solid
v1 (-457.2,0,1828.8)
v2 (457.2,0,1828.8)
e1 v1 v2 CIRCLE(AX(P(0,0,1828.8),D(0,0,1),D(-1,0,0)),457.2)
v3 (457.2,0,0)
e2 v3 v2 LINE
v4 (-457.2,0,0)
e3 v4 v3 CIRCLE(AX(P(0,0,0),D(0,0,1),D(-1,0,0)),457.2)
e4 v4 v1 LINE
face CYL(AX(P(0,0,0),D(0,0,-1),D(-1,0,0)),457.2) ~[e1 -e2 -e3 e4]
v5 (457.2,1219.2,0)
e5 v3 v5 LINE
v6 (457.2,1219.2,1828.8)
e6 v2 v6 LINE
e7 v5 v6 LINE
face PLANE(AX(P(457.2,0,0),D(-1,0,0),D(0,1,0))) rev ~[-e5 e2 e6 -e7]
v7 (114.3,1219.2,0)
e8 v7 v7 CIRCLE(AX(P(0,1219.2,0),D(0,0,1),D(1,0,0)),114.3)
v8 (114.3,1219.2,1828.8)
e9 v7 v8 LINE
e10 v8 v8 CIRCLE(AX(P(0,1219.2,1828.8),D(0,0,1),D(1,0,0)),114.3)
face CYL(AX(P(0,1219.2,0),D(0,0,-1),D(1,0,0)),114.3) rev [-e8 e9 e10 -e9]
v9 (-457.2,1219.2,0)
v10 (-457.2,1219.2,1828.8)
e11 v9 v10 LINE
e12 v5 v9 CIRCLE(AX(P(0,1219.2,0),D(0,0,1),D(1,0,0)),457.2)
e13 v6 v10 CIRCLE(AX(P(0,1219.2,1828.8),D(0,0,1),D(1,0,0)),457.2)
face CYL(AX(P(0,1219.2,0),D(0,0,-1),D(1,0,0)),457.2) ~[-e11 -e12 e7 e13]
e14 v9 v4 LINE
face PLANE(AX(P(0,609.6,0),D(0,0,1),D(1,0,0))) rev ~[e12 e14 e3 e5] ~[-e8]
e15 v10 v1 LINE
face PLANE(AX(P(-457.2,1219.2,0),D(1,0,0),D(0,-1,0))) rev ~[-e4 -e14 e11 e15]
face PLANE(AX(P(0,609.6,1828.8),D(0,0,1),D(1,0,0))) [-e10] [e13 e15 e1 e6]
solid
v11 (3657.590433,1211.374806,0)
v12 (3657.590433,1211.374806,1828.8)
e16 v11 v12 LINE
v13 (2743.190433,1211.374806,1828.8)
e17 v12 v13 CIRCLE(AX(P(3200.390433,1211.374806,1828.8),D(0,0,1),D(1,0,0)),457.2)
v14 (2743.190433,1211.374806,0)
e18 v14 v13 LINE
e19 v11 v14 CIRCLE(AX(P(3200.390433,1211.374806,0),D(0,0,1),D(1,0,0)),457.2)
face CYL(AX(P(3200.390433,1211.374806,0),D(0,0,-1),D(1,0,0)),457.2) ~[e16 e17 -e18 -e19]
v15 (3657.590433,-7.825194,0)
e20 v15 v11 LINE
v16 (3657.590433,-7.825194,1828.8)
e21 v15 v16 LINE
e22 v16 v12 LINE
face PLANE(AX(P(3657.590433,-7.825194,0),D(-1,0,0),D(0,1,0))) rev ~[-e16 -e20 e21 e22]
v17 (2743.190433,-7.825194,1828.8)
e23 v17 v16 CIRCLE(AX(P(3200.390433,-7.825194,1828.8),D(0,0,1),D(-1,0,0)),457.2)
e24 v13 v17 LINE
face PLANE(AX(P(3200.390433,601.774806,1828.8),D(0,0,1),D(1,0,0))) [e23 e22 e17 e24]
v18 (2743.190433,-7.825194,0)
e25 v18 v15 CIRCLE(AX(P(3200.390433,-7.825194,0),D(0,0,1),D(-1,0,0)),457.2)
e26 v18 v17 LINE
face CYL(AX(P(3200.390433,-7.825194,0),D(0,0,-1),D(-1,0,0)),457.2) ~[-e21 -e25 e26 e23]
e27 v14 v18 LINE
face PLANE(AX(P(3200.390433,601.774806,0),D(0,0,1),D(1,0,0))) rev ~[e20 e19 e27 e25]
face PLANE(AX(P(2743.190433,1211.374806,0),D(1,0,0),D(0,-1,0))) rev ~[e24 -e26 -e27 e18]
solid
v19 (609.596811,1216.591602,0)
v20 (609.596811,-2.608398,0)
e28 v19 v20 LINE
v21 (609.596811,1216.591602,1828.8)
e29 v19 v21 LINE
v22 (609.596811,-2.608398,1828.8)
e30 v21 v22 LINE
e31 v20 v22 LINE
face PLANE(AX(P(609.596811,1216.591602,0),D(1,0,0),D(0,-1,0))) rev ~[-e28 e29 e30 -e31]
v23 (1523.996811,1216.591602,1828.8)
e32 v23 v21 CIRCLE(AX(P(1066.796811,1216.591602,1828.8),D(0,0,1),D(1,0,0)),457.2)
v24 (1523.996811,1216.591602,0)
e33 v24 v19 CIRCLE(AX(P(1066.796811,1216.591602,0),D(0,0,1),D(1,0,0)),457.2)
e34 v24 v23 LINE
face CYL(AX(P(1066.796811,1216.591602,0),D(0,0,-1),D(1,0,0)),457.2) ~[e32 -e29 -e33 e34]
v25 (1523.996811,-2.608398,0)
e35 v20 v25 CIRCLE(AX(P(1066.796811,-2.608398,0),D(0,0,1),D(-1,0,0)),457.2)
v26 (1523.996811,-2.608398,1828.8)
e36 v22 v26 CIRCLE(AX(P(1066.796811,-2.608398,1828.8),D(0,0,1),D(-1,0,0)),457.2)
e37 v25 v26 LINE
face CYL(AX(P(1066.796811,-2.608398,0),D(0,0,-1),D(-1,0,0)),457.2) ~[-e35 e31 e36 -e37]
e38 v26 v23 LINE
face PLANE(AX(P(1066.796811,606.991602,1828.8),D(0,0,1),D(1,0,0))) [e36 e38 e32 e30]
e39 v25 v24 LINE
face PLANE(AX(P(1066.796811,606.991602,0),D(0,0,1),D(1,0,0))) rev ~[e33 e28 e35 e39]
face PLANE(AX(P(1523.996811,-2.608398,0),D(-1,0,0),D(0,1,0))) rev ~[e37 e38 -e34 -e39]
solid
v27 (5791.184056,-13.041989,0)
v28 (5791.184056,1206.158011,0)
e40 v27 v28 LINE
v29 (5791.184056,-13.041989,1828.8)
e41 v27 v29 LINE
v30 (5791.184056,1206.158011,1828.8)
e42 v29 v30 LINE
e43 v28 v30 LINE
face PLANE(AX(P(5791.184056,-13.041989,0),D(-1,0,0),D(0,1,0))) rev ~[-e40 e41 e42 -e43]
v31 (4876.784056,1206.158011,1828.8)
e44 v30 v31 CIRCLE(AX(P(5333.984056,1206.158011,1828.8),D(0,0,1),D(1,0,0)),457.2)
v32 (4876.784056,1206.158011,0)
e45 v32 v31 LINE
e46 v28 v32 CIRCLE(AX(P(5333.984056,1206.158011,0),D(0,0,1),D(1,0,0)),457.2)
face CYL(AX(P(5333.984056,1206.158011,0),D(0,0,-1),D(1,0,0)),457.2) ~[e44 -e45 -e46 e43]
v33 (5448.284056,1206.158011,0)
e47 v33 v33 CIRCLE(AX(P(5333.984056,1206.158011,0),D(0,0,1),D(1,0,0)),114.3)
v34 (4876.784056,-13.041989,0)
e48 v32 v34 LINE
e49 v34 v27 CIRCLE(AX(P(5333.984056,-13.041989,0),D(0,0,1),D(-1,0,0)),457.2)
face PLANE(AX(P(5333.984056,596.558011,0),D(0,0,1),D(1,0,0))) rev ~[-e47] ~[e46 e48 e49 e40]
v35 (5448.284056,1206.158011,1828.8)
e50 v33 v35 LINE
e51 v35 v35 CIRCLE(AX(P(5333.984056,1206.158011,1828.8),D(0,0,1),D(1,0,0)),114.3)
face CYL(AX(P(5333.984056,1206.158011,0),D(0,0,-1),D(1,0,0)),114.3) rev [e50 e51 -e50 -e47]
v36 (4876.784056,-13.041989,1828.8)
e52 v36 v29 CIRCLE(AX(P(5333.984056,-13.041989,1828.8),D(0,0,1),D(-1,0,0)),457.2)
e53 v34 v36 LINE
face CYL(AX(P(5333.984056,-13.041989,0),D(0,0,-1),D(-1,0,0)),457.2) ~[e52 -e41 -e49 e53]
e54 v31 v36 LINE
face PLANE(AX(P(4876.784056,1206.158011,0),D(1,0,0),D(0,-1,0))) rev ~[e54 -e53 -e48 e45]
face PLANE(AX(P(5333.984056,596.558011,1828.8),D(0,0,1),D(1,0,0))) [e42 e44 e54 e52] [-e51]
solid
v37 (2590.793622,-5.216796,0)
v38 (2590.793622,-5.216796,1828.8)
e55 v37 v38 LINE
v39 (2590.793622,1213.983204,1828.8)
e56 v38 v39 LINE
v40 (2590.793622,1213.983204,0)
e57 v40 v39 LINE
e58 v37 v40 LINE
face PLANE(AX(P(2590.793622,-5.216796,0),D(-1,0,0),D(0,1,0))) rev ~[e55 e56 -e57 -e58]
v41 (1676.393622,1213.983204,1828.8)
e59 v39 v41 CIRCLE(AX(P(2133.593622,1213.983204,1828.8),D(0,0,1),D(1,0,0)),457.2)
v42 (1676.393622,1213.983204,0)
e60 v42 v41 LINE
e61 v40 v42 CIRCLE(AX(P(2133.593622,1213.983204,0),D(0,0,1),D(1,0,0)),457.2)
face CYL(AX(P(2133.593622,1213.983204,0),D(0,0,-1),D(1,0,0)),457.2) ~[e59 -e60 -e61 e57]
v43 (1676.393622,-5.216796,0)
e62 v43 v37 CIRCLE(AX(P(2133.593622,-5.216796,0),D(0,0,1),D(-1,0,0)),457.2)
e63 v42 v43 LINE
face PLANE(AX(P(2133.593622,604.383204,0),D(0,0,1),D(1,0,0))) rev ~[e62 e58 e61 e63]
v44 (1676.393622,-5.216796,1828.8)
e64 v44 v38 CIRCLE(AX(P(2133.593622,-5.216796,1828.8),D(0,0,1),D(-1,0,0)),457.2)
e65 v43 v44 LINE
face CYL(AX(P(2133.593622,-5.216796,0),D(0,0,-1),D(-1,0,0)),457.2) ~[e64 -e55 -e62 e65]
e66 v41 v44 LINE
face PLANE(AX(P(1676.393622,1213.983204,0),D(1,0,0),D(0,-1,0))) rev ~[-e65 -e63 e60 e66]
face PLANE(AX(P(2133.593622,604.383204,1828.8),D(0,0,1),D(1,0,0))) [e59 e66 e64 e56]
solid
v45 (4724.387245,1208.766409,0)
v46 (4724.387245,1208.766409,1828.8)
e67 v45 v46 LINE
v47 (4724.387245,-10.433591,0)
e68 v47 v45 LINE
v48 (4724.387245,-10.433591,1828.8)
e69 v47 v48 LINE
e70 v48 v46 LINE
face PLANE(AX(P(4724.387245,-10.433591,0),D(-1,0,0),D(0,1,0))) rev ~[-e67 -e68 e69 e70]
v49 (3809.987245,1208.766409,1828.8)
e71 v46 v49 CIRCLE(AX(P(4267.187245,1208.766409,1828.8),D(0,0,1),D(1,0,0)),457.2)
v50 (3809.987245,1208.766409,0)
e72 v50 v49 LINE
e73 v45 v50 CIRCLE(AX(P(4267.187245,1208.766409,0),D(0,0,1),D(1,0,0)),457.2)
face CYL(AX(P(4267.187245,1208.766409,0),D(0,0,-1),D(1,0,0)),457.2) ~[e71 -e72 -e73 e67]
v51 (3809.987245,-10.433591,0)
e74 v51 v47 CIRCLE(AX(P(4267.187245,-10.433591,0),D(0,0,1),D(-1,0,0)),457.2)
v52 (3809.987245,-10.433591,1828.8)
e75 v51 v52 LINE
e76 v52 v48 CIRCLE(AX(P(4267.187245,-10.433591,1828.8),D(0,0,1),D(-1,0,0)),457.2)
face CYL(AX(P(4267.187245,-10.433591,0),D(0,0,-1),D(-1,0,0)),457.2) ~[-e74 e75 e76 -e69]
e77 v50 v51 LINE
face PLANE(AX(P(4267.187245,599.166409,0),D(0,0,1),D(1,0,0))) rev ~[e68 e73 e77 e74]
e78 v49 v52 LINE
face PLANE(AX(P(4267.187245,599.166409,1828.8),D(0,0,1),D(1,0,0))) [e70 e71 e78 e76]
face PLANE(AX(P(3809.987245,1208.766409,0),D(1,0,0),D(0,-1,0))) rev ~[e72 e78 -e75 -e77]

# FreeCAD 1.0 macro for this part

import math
import FreeCAD as App
import Part
import Sketcher

V = App.Vector
Q = App.Units.Quantity

doc = App.newDocument("Part")
params = doc.addObject("Spreadsheet::Sheet", "Params")
for row, (alias, value) in enumerate([
    ("sketch1_diameter", "9 in"),
    ("sketch1_radius", "18 in"),
    ("sketch1_height", "48 in"),
    ("pad1_length", "72 in"),
], start=1):
    params.set(f"A{row}", alias)
    params.set(f"B{row}", "=" + value)
    params.setAlias(f"B{row}", alias)

body = doc.addObject("PartDesign::Body", "Body")
body.AllowCompound = True

# Sketch on XY plane
sketch1 = body.newObject("Sketcher::SketchObject", "Sketch")
sketch1.AttachmentSupport = (doc.getObject("XY_Plane"), [""])
sketch1.MapMode = "FlatFace"
sketch1.addGeometry([
    Part.ArcOfCircle(Part.Circle(V(0, 1219, 0), V(0, 0, 1), 457), math.radians(0), math.radians(180)),  # 0
    Part.LineSegment(V(-457, 1219, 0), V(-457, 0, 0)),  # 1
    Part.ArcOfCircle(Part.Circle(V(0, 0, 0), V(0, 0, 1), 457), math.radians(180), math.radians(360)),  # 2
    Part.LineSegment(V(457, 0, 0), V(457, 1219, 0)),  # 3
    Part.Circle(V(0, 1219, 0), V(0, 0, 1), 114),  # 4
    Part.LineSegment(V(1524, -3, 0), V(1524, 1217, 0)),  # 5
    Part.ArcOfCircle(Part.Circle(V(1067, 1217, 0), V(0, 0, 1), 457), math.radians(0), math.radians(180)),  # 6
    Part.LineSegment(V(610, 1217, 0), V(610, -3, 0)),  # 7
    Part.ArcOfCircle(Part.Circle(V(1067, -3, 0), V(0, 0, 1), 457), math.radians(180), math.radians(360)),  # 8
    Part.LineSegment(V(2591, -5, 0), V(2591, 1214, 0)),  # 9
    Part.ArcOfCircle(Part.Circle(V(2134, 1214, 0), V(0, 0, 1), 457), math.radians(0), math.radians(180)),  # 10
    Part.LineSegment(V(1676, 1214, 0), V(1676, -5, 0)),  # 11
    Part.ArcOfCircle(Part.Circle(V(2134, -5, 0), V(0, 0, 1), 457), math.radians(180), math.radians(360)),  # 12
    Part.LineSegment(V(3658, -8, 0), V(3658, 1211, 0)),  # 13
    Part.ArcOfCircle(Part.Circle(V(3200, 1211, 0), V(0, 0, 1), 457), math.radians(0), math.radians(180)),  # 14
    Part.LineSegment(V(2743, 1211, 0), V(2743, -8, 0)),  # 15
    Part.ArcOfCircle(Part.Circle(V(3200, -8, 0), V(0, 0, 1), 457), math.radians(180), math.radians(360)),  # 16
    Part.LineSegment(V(4724, -10, 0), V(4724, 1209, 0)),  # 17
    Part.ArcOfCircle(Part.Circle(V(4267, 1209, 0), V(0, 0, 1), 457), math.radians(0), math.radians(180)),  # 18
    Part.LineSegment(V(3810, 1209, 0), V(3810, -10, 0)),  # 19
    Part.ArcOfCircle(Part.Circle(V(4267, -10, 0), V(0, 0, 1), 457), math.radians(180), math.radians(360)),  # 20
    Part.LineSegment(V(5791, -13, 0), V(5791, 1206, 0)),  # 21
    Part.ArcOfCircle(Part.Circle(V(5334, 1206, 0), V(0, 0, 1), 457), math.radians(0), math.radians(180)),  # 22
    Part.LineSegment(V(4877, 1206, 0), V(4877, -13, 0)),  # 23
    Part.ArcOfCircle(Part.Circle(V(5334, -13, 0), V(0, 0, 1), 457), math.radians(180), math.radians(360)),  # 24
    Part.Circle(V(5334, 1206, 0), V(0, 0, 1), 114),  # 25
], False)
sketch1.addConstraint([
    Sketcher.Constraint("Tangent", 0, 2, 1, 1),
    Sketcher.Constraint("Tangent", 1, 2, 2, 1),
    Sketcher.Constraint("Tangent", 2, 2, 3, 1),
    Sketcher.Constraint("Tangent", 3, 2, 0, 1),
    Sketcher.Constraint("Tangent", 5, 2, 6, 1),
    Sketcher.Constraint("Tangent", 6, 2, 7, 1),
    Sketcher.Constraint("Tangent", 7, 2, 8, 1),
    Sketcher.Constraint("Tangent", 8, 2, 5, 1),
    Sketcher.Constraint("Tangent", 9, 2, 10, 1),
    Sketcher.Constraint("Tangent", 10, 2, 11, 1),
    Sketcher.Constraint("Tangent", 11, 2, 12, 1),
    Sketcher.Constraint("Tangent", 12, 2, 9, 1),
    Sketcher.Constraint("Tangent", 13, 2, 14, 1),
    Sketcher.Constraint("Tangent", 14, 2, 15, 1),
    Sketcher.Constraint("Tangent", 15, 2, 16, 1),
    Sketcher.Constraint("Tangent", 16, 2, 13, 1),
    Sketcher.Constraint("Tangent", 17, 2, 18, 1),
    Sketcher.Constraint("Tangent", 18, 2, 19, 1),
    Sketcher.Constraint("Tangent", 19, 2, 20, 1),
    Sketcher.Constraint("Tangent", 20, 2, 17, 1),
    Sketcher.Constraint("Tangent", 21, 2, 22, 1),
    Sketcher.Constraint("Tangent", 22, 2, 23, 1),
    Sketcher.Constraint("Tangent", 23, 2, 24, 1),
    Sketcher.Constraint("Tangent", 24, 2, 21, 1),
    Sketcher.Constraint("Vertical", 1),
    Sketcher.Constraint("Vertical", 3),
    Sketcher.Constraint("Vertical", 5),
    Sketcher.Constraint("Vertical", 7),
    Sketcher.Constraint("Vertical", 9),
    Sketcher.Constraint("Vertical", 11),
    Sketcher.Constraint("Vertical", 13),
    Sketcher.Constraint("Vertical", 15),
    Sketcher.Constraint("Vertical", 17),
    Sketcher.Constraint("Vertical", 19),
    Sketcher.Constraint("Vertical", 21),
    Sketcher.Constraint("Vertical", 23),
    Sketcher.Constraint("Coincident", 2, 3, -1, 1),
    Sketcher.Constraint("Coincident", 4, 3, 0, 3),
    Sketcher.Constraint("Coincident", 25, 3, 22, 3),
    Sketcher.Constraint("Equal", 2, 6),
    Sketcher.Constraint("Equal", 8, 10),
    Sketcher.Constraint("Equal", 12, 14),
    Sketcher.Constraint("Equal", 16, 18),
    Sketcher.Constraint("Equal", 20, 22),
    Sketcher.Constraint("Equal", 4, 25),
    Sketcher.Constraint("Equal", 3, 5),
    Sketcher.Constraint("Equal", 7, 9),
    Sketcher.Constraint("Equal", 11, 13),
    Sketcher.Constraint("Equal", 15, 17),
    Sketcher.Constraint("Equal", 19, 21),
    Sketcher.Constraint("Diameter", 4, Q("9 in")),
    Sketcher.Constraint("Radius", 0, Q("18 in")),
    Sketcher.Constraint("DistanceY", 1, 2, 1, 1, Q("48 in")),
    Sketcher.Constraint("DistanceY", -1, 1, 6, 3, 1216.591602),
    Sketcher.Constraint("DistanceY", 10, 3, 6, 3, 2.608398),
    Sketcher.Constraint("DistanceY", 12, 3, 14, 3, 1216.591602),
    Sketcher.Constraint("DistanceY", 22, 3, 18, 3, 2.608398),
    Sketcher.Constraint("DistanceX", -1, 1, 6, 3, 1066.796811),
    Sketcher.Constraint("DistanceX", -1, 1, 10, 3, 2133.593622),
    Sketcher.Constraint("DistanceY", -1, 1, 18, 3, 1208.766409),
    Sketcher.Constraint("DistanceX", 10, 3, 14, 3, 1066.796811),
    Sketcher.Constraint("DistanceX", 14, 3, 18, 3, 1066.796812),
    Sketcher.Constraint("DistanceX", 18, 3, 22, 3, 1066.796811),
])
sketch1.setExpression("Constraints[50]", "Params.sketch1_diameter")
sketch1.setExpression("Constraints[51]", "Params.sketch1_radius")
sketch1.setExpression("Constraints[52]", "Params.sketch1_height")
pad1 = body.newObject("PartDesign::Pad", "Pad")
pad1.Profile = sketch1
pad1.setExpression("Length", "Params.pad1_length")

doc.recompute()
